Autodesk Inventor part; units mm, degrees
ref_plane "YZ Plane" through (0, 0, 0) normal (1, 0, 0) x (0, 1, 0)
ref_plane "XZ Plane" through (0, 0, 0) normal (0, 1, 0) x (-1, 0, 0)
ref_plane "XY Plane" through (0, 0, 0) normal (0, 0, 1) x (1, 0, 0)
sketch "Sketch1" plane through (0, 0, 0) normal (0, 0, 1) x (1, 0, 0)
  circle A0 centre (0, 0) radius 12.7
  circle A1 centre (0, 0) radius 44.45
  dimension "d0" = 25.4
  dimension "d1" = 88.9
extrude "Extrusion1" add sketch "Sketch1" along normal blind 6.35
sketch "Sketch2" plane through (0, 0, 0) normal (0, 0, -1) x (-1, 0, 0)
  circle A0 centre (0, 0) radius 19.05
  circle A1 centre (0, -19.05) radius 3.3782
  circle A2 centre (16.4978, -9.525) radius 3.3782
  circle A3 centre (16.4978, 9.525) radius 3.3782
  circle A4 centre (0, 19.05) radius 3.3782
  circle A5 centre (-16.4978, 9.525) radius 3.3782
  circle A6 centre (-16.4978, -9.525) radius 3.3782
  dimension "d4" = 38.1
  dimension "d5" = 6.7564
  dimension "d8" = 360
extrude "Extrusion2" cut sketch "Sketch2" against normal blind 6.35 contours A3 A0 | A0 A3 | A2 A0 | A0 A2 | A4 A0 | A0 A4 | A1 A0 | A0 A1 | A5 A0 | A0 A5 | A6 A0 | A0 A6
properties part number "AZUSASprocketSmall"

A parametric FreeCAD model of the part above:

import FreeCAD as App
import Part
import Sketcher
Q = App.Units.Quantity

doc = App.newDocument("Part")
body = doc.addObject("PartDesign::Body", "Body")

# Sketch on XY plane
sketch1 = doc.addObject("Sketcher::SketchObject", "Sketch")
body.addObject(sketch1)
sketch1.AttachmentSupport = (doc.XY_Plane, [""])
sketch1.MapMode = "FlatFace"
sketch1.addGeometry([
    Part.Circle(App.Vector(0, 0, 0), App.Vector(0, 0, 1), 44),
    Part.Circle(App.Vector(0, 0, 0), App.Vector(0, 0, 1), 13),
], False)
sketch1.addConstraint([
    Sketcher.Constraint("Coincident", 0, 3, -1, 1),
    Sketcher.Constraint("Coincident", 1, 3, -1, 1),
    Sketcher.Constraint("Diameter", 1, Q("1 in")),
    Sketcher.Constraint("Diameter", 0, Q("3.5 in")),
])
pad1 = doc.addObject("PartDesign::Pad", "Pad")
body.addObject(pad1)
pad1.Profile = sketch1
pad1.Length = Q("0.25 in")

# Sketch on XY plane
sketch2 = doc.addObject("Sketcher::SketchObject", "Sketch001")
body.addObject(sketch2)
sketch2.AttachmentSupport = (doc.XY_Plane, [""])
sketch2.MapMode = "FlatFace"
sketch2.addGeometry([
    Part.Circle(App.Vector(-16.5, 9.5, 0), App.Vector(0, 0, 1), 3.4),  # 0
    Part.Circle(App.Vector(-16.5, -9.5, 0), App.Vector(0, 0, 1), 3.4),  # 1
    Part.Circle(App.Vector(0, 19.1, 0), App.Vector(0, 0, 1), 3.4),  # 2
    Part.Circle(App.Vector(0, -19.1, 0), App.Vector(0, 0, 1), 3.4),  # 3
    Part.Circle(App.Vector(16.5, 9.5, 0), App.Vector(0, 0, 1), 3.4),  # 4
    Part.Circle(App.Vector(16.5, -9.5, 0), App.Vector(0, 0, 1), 3.4),  # 5
], False)
sketch2.addConstraint([
    Sketcher.Constraint("Equal", 0, 1),
    Sketcher.Constraint("Equal", 1, 2),
    Sketcher.Constraint("Equal", 2, 3),
    Sketcher.Constraint("Equal", 3, 4),
    Sketcher.Constraint("Equal", 4, 5),
    Sketcher.Constraint("Symmetric", 2, 3, 3, 3, -1, 1),
    Sketcher.Constraint("Symmetric", 1, 3, 4, 3, -1, 1),
    Sketcher.Constraint("Symmetric", 0, 3, 5, 3, -1, 1),
    Sketcher.Constraint("Symmetric", 0, 3, 4, 3, -2),
    Sketcher.Constraint("PointOnObject", 2, 3, -2),
    Sketcher.Constraint("Diameter", 0, Q("0.266 in")),
    Sketcher.Constraint("DistanceY", 3, 3, 2, 3, Q("1.5 in")),
    Sketcher.Constraint("DistanceY", 1, 3, 0, 3, Q("0.75 in")),
    Sketcher.Constraint("DistanceX", 0, 3, -1, 1, Q("16.4978 mm")),
])
pocket1 = doc.addObject("PartDesign::Pocket", "Pocket")
body.addObject(pocket1)
pocket1.Profile = sketch2
pocket1.Length = Q("0.25 in")
pocket1.Reversed = True

doc.recompute()
